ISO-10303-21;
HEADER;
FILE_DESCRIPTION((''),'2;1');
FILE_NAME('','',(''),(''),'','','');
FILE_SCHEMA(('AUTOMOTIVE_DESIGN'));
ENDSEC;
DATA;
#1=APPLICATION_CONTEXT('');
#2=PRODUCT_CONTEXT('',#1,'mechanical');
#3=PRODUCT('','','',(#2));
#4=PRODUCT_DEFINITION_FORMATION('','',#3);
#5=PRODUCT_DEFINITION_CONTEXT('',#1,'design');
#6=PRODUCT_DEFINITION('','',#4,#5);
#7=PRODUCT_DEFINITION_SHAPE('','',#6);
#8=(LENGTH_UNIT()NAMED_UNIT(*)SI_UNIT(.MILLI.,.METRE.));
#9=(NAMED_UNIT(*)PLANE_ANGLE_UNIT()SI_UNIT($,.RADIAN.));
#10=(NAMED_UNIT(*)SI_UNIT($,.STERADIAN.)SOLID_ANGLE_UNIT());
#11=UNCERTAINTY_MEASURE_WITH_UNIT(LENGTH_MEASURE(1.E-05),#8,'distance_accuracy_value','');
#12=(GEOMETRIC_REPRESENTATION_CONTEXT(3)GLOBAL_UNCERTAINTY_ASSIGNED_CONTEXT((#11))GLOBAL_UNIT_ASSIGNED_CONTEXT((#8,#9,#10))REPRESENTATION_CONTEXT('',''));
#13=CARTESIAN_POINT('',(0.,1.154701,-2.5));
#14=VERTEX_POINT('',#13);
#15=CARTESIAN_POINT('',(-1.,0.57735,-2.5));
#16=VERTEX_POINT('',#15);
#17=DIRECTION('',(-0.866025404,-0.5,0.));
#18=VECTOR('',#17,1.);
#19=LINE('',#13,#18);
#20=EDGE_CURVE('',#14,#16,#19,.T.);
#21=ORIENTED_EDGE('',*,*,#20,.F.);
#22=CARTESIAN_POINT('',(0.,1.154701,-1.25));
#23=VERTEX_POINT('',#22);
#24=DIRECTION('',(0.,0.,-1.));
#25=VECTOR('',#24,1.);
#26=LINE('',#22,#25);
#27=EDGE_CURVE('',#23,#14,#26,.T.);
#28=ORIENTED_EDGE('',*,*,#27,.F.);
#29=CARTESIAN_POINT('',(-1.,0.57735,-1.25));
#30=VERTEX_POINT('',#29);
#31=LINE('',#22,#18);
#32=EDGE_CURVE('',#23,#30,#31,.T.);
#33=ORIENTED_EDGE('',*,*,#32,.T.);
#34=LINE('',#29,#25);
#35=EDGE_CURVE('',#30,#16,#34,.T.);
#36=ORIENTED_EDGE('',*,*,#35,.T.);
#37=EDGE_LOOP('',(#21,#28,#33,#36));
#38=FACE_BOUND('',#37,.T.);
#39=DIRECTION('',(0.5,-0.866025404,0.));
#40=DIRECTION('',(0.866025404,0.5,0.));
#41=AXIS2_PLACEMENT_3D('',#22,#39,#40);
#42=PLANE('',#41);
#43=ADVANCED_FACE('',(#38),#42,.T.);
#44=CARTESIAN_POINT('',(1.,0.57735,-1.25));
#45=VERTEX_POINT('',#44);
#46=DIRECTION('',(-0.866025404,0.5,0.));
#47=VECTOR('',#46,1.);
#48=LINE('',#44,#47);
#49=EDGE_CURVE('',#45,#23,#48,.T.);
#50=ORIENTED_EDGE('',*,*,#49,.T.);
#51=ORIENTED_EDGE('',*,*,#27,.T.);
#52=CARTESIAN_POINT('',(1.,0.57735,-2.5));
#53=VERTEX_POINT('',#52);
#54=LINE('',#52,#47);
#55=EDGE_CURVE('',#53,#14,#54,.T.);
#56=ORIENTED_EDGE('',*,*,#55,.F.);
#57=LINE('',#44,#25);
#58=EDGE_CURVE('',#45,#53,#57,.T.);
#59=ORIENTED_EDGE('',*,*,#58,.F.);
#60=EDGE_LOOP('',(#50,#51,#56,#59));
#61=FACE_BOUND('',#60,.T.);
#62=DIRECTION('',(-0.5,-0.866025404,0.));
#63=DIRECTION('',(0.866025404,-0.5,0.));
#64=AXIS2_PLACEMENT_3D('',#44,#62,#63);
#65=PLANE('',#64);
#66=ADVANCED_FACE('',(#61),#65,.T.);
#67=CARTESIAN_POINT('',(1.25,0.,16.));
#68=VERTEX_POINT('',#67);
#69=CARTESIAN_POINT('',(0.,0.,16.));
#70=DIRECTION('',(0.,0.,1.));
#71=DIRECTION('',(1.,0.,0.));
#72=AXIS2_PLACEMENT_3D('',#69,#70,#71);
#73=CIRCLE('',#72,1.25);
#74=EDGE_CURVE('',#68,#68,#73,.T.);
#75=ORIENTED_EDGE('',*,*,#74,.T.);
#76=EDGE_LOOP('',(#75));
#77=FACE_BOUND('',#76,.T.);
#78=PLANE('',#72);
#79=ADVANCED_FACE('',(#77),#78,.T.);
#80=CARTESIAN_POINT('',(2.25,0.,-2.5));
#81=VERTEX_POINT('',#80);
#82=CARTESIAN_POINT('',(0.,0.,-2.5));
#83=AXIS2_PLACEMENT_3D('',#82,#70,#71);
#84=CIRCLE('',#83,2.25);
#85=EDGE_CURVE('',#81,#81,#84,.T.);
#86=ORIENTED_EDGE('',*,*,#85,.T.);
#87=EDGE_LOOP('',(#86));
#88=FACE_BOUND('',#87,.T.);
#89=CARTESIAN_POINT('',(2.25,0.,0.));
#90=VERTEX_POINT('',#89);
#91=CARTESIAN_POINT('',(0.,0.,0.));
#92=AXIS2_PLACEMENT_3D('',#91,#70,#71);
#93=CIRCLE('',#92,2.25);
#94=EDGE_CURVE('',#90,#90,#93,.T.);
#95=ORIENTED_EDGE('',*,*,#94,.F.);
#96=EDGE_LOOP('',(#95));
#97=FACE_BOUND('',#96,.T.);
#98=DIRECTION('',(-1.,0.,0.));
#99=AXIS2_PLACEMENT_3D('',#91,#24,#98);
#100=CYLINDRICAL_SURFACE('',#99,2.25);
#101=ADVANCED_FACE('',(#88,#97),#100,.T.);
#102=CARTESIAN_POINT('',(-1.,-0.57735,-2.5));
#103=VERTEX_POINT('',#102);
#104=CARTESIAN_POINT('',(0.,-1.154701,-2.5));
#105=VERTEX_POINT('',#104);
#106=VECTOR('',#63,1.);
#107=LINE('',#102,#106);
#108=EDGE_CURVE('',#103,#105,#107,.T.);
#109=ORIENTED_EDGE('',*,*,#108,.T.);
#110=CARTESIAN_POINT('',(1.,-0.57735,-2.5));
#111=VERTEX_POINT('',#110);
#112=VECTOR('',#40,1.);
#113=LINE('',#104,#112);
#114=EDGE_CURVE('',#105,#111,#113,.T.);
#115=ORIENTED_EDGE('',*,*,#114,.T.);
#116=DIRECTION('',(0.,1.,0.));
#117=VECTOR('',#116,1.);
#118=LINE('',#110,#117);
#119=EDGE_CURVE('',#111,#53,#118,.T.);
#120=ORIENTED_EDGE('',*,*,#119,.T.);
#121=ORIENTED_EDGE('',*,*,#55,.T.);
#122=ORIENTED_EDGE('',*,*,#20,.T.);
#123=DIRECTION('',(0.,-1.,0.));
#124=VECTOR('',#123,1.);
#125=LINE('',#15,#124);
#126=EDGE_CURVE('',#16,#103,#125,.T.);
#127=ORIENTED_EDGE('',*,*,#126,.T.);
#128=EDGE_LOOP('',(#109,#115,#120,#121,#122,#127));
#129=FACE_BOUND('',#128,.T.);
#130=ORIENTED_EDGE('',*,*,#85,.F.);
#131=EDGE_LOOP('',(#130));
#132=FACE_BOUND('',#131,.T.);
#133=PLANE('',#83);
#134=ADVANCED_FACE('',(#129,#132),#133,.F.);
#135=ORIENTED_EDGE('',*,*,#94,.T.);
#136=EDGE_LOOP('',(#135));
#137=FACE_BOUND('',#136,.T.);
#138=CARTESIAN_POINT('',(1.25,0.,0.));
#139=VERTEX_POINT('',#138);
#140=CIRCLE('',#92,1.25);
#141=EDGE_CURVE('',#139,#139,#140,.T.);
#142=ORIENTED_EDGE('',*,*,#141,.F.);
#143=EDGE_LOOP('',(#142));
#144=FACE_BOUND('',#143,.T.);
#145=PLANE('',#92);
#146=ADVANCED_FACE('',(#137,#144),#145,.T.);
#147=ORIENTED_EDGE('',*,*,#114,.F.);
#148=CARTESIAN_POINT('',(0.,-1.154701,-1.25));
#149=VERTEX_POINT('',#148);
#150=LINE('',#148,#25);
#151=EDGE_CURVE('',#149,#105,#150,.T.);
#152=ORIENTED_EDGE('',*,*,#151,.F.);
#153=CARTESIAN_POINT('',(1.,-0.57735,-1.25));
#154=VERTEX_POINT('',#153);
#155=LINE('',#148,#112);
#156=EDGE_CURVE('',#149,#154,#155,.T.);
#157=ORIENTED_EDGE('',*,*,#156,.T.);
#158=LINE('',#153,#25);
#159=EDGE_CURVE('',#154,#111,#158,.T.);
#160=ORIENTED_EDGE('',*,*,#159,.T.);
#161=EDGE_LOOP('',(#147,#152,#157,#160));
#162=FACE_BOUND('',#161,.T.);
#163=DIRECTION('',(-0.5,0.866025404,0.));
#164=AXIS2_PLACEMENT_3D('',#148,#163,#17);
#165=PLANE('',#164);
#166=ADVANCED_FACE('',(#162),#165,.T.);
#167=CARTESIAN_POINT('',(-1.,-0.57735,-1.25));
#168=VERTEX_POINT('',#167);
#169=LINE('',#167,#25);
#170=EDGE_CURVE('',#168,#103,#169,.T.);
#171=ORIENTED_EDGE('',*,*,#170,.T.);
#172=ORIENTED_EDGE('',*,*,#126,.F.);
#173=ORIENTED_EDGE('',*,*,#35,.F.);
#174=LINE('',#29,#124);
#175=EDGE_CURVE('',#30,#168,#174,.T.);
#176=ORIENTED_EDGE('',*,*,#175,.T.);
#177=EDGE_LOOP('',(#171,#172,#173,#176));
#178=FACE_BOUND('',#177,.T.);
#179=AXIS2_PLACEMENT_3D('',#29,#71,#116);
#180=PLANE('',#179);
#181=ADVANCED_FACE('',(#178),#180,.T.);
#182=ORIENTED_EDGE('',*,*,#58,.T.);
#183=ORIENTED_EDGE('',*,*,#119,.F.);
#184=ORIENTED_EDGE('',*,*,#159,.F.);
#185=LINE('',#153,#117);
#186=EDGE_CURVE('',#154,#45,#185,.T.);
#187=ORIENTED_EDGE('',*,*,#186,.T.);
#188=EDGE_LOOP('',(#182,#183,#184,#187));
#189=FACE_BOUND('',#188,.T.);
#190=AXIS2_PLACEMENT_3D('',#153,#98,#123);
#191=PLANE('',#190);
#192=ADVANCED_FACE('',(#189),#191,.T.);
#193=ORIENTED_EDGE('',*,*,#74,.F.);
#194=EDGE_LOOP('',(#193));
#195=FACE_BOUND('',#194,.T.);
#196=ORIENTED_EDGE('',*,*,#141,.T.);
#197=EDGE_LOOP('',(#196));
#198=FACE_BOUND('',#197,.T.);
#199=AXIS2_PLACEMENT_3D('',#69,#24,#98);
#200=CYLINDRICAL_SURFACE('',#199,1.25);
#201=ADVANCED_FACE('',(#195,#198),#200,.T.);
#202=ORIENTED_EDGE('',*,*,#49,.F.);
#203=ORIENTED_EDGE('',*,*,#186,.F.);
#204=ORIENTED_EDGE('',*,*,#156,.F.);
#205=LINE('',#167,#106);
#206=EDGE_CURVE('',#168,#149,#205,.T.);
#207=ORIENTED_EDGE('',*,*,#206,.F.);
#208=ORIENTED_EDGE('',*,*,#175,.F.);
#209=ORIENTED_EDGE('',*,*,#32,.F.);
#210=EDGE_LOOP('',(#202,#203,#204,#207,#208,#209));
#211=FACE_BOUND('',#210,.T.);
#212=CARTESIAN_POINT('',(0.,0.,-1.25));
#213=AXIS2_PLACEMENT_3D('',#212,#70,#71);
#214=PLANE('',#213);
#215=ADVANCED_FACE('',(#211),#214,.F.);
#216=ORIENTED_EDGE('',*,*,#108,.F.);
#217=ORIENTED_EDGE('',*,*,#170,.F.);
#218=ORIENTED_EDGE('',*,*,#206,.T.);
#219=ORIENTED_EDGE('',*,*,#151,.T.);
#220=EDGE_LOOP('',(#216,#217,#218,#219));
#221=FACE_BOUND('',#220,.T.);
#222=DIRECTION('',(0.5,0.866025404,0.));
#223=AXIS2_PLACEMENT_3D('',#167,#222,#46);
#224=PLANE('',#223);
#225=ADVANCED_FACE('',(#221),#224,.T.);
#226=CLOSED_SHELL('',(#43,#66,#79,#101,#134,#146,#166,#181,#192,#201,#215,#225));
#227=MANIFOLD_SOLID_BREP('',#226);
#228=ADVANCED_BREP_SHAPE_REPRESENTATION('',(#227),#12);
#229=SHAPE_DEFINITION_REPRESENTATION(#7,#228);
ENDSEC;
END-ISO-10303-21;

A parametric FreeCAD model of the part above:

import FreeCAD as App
import Part
import Sketcher

V = App.Vector
Q = App.Units.Quantity


def add_polygon(sketch, points):
    """Adds a closed chain of lines whose ends are joined by coincident constraints."""
    first, n = sketch.GeometryCount, len(points)
    for a, b in zip(points, points[1:] + points[:1]):
        sketch.addGeometry(Part.LineSegment(App.Vector(*a, 0), App.Vector(*b, 0)), False)
    for i in range(n):
        sketch.addConstraint(Sketcher.Constraint("Coincident", first + i, 2, first + (i + 1) % n, 1))

doc = App.newDocument("Part")
body = doc.addObject("PartDesign::Body", "Body")

# Sketch on XY plane
sketch1 = body.newObject("Sketcher::SketchObject", "Sketch")
sketch1.AttachmentSupport = (doc.getObject("XY_Plane"), [""])
sketch1.MapMode = "FlatFace"
sketch1.AttachmentOffset = App.Placement(V(0, 0, -2.5), App.Rotation())
sketch1.addGeometry(Part.Circle(V(0, 0, 0), V(0, 0, 1), 2.2), False)
sketch1.addConstraint([
    Sketcher.Constraint("Coincident", 0, 3, -1, 1),
    Sketcher.Constraint("Diameter", 0, 4.5),
])
pad1 = body.newObject("PartDesign::Pad", "Pad")
pad1.Profile = sketch1
pad1.Length = 2.5

# Sketch on XY plane
sketch2 = body.newObject("Sketcher::SketchObject", "Sketch001")
sketch2.AttachmentSupport = (doc.getObject("XY_Plane"), [""])
sketch2.MapMode = "FlatFace"
sketch2.addGeometry(Part.Circle(V(0, 0, 0), V(0, 0, 1), 1.2), False)
sketch2.addConstraint([
    Sketcher.Constraint("Coincident", 0, 3, -1, 1),
    Sketcher.Constraint("Diameter", 0, 2.5),
])
pad2 = body.newObject("PartDesign::Pad", "Pad001")
pad2.Profile = sketch2
pad2.Length = 16

# Sketch on XY plane
sketch3 = body.newObject("Sketcher::SketchObject", "Sketch002")
sketch3.AttachmentSupport = (doc.getObject("XY_Plane"), [""])
sketch3.MapMode = "FlatFace"
sketch3.AttachmentOffset = App.Placement(V(0, 0, -2.5), App.Rotation())
add_polygon(sketch3, [(0, -1.2), (1, -0.6), (1, 0.6), (0, 1.2), (-1, 0.6), (-1, -0.6)])  # lines 0-5
sketch3.addConstraint([
    Sketcher.Constraint("Vertical", 1),
    Sketcher.Constraint("Vertical", 4),
    Sketcher.Constraint("Symmetric", 0, 2, 3, 2, -1, 1),
    Sketcher.Constraint("Symmetric", 2, 2, 5, 2, -1, 1),
    Sketcher.Constraint("PointOnObject", 2, 2, -2),
    Sketcher.Constraint("Parallel", 2, 5),
    Sketcher.Constraint("Horizontal", 1, 2, 3, 2),
    Sketcher.Constraint("Angle", 0, Q("30 deg")),
    Sketcher.Constraint("DistanceX", -1, 1, 0, 2, 1.0),
    Sketcher.Constraint("DistanceY", 1, 1, 1, 2, 1.154701),
])
pocket1 = body.newObject("PartDesign::Pocket", "Pocket")
pocket1.Profile = sketch3
pocket1.Length = 1.25
pocket1.Reversed = True

doc.recompute()
